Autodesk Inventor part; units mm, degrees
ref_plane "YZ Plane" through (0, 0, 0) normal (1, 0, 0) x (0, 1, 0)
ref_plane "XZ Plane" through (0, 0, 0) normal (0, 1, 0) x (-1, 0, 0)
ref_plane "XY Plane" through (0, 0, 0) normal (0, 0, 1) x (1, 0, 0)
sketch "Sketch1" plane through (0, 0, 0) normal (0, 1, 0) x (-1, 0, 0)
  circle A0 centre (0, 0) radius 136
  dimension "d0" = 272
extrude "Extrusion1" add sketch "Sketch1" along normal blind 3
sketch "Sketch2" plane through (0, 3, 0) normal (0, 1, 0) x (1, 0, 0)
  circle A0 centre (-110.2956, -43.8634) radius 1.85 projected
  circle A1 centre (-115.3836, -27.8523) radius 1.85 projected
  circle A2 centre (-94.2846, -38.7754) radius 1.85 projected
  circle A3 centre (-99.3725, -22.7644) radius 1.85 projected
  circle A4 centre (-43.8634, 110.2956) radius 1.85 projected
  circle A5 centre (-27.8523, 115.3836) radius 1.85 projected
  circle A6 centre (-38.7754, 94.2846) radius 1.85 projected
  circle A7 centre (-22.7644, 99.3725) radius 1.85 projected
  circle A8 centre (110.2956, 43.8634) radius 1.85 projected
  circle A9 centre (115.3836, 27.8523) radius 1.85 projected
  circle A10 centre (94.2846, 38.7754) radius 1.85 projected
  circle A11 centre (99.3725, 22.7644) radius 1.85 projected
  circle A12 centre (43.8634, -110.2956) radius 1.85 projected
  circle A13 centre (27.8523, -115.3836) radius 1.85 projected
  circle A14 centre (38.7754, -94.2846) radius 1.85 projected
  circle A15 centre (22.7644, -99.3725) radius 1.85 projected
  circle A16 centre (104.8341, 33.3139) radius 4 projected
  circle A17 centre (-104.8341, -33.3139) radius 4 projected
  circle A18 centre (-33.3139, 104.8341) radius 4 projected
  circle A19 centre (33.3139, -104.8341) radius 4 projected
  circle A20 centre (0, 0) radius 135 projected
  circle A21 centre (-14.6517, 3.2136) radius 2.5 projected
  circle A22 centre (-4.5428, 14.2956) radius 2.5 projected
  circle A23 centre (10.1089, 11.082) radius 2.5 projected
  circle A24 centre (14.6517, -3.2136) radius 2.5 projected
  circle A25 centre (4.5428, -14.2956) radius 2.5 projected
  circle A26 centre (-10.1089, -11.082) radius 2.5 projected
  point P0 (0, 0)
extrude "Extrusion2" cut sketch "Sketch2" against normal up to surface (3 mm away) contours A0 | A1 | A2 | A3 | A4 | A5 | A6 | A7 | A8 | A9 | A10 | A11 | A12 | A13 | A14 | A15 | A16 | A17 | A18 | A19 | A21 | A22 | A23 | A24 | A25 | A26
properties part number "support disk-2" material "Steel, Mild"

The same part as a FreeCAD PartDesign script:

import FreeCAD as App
import Part
import Sketcher
from FreeCAD import Vector
Q = App.Units.Quantity

doc = App.newDocument("Part")
params = doc.addObject("Spreadsheet::Sheet", "Params")
for row, (alias, value) in enumerate([
    ("sketch1_diameter", "272 mm"),
    ("pad1_length", "3 mm"),
    ("sketch2_diameter", "8 mm"),
    ("sketch2_diameter2", "5 mm"),
    ("sketch2_diameter3", "3.7 mm"),
    ("pocket1_length", "3 mm"),
], start=1):
    params.set(f"A{row}", alias)
    params.set(f"B{row}", "=" + value)
    params.setAlias(f"B{row}", alias)

body = doc.addObject("PartDesign::Body", "Body")

# Sketch on XZ plane
sketch1 = doc.addObject("Sketcher::SketchObject", "Sketch")
body.addObject(sketch1)
sketch1.AttachmentSupport = (doc.XZ_Plane, [""])
sketch1.MapMode = "FlatFace"
sketch1.addGeometry(Part.Circle(Vector(0, 0, 0), Vector(0, 0, 1), 136), False)
sketch1.addConstraint([
    Sketcher.Constraint("Coincident", 0, 3, -1, 1),
    Sketcher.Constraint("Diameter", 0, Q("272 mm")),
])
sketch1.setExpression("Constraints[1]", "Params.sketch1_diameter")
pad1 = doc.addObject("PartDesign::Pad", "Pad")
body.addObject(pad1)
pad1.Profile = sketch1
pad1.setExpression("Length", "Params.pad1_length")
pad1.Reversed = True

# Sketch on XZ plane
sketch2 = doc.addObject("Sketcher::SketchObject", "Sketch001")
body.addObject(sketch2)
sketch2.AttachmentSupport = (doc.XZ_Plane, [""])
sketch2.MapMode = "FlatFace"
sketch2.AttachmentOffset = App.Placement(Vector(0, 0, -3), App.Rotation())
sketch2.addGeometry([
    Part.Circle(Vector(-110.3, 43.9, 0), Vector(0, 0, 1), 1.9),  # 0
    Part.Circle(Vector(-115.4, 27.9, 0), Vector(0, 0, 1), 1.9),  # 1
    Part.Circle(Vector(-94.3, 38.8, 0), Vector(0, 0, 1), 1.9),  # 2
    Part.Circle(Vector(-99.4, 22.8, 0), Vector(0, 0, 1), 1.9),  # 3
    Part.Circle(Vector(-43.9, -110.3, 0), Vector(0, 0, 1), 1.9),  # 4
    Part.Circle(Vector(-27.9, -115.4, 0), Vector(0, 0, 1), 1.9),  # 5
    Part.Circle(Vector(-38.8, -94.3, 0), Vector(0, 0, 1), 1.9),  # 6
    Part.Circle(Vector(-22.8, -99.4, 0), Vector(0, 0, 1), 1.9),  # 7
    Part.Circle(Vector(110.3, -43.9, 0), Vector(0, 0, 1), 1.9),  # 8
    Part.Circle(Vector(115.4, -27.9, 0), Vector(0, 0, 1), 1.9),  # 9
    Part.Circle(Vector(94.3, -38.8, 0), Vector(0, 0, 1), 1.9),  # 10
    Part.Circle(Vector(99.4, -22.8, 0), Vector(0, 0, 1), 1.9),  # 11
    Part.Circle(Vector(43.9, 110.3, 0), Vector(0, 0, 1), 1.9),  # 12
    Part.Circle(Vector(27.9, 115.4, 0), Vector(0, 0, 1), 1.9),  # 13
    Part.Circle(Vector(38.8, 94.3, 0), Vector(0, 0, 1), 1.9),  # 14
    Part.Circle(Vector(22.8, 99.4, 0), Vector(0, 0, 1), 1.9),  # 15
    Part.Circle(Vector(104.8, -33.3, 0), Vector(0, 0, 1), 4),  # 16
    Part.Circle(Vector(-104.8, 33.3, 0), Vector(0, 0, 1), 4),  # 17
    Part.Circle(Vector(-33.3, -104.8, 0), Vector(0, 0, 1), 4),  # 18
    Part.Circle(Vector(33.3, 104.8, 0), Vector(0, 0, 1), 4),  # 19
    Part.Circle(Vector(-14.7, -3.2, 0), Vector(0, 0, 1), 2.5),  # 20
    Part.Circle(Vector(-4.5, -14.3, 0), Vector(0, 0, 1), 2.5),  # 21
    Part.Circle(Vector(10.1, -11.1, 0), Vector(0, 0, 1), 2.5),  # 22
    Part.Circle(Vector(14.7, 3.2, 0), Vector(0, 0, 1), 2.5),  # 23
    Part.Circle(Vector(4.5, 14.3, 0), Vector(0, 0, 1), 2.5),  # 24
    Part.Circle(Vector(-10.1, 11.1, 0), Vector(0, 0, 1), 2.5),  # 25
], False)
sketch2.addConstraint([
    Sketcher.Constraint("Equal", 0, 1),
    Sketcher.Constraint("Equal", 1, 2),
    Sketcher.Constraint("Equal", 2, 3),
    Sketcher.Constraint("Equal", 3, 4),
    Sketcher.Constraint("Equal", 4, 5),
    Sketcher.Constraint("Equal", 5, 6),
    Sketcher.Constraint("Equal", 6, 7),
    Sketcher.Constraint("Equal", 7, 8),
    Sketcher.Constraint("Equal", 8, 9),
    Sketcher.Constraint("Equal", 9, 10),
    Sketcher.Constraint("Equal", 10, 11),
    Sketcher.Constraint("Equal", 11, 12),
    Sketcher.Constraint("Equal", 12, 13),
    Sketcher.Constraint("Equal", 13, 14),
    Sketcher.Constraint("Equal", 14, 15),
    Sketcher.Constraint("Equal", 16, 17),
    Sketcher.Constraint("Equal", 17, 18),
    Sketcher.Constraint("Equal", 18, 19),
    Sketcher.Constraint("Equal", 20, 21),
    Sketcher.Constraint("Equal", 21, 22),
    Sketcher.Constraint("Equal", 22, 23),
    Sketcher.Constraint("Equal", 23, 24),
    Sketcher.Constraint("Equal", 24, 25),
    Sketcher.Constraint("Symmetric", 0, 3, 8, 3, -1, 1),
    Sketcher.Constraint("Symmetric", 1, 3, 9, 3, -1, 1),
    Sketcher.Constraint("Symmetric", 2, 3, 10, 3, -1, 1),
    Sketcher.Constraint("Symmetric", 3, 3, 11, 3, -1, 1),
    Sketcher.Constraint("Symmetric", 4, 3, 12, 3, -1, 1),
    Sketcher.Constraint("Symmetric", 5, 3, 13, 3, -1, 1),
    Sketcher.Constraint("Symmetric", 6, 3, 14, 3, -1, 1),
    Sketcher.Constraint("Symmetric", 7, 3, 15, 3, -1, 1),
    Sketcher.Constraint("Symmetric", 16, 3, 17, 3, -1, 1),
    Sketcher.Constraint("Symmetric", 18, 3, 19, 3, -1, 1),
    Sketcher.Constraint("Symmetric", 20, 3, 23, 3, -1, 1),
    Sketcher.Constraint("Symmetric", 21, 3, 24, 3, -1, 1),
    Sketcher.Constraint("Symmetric", 22, 3, 25, 3, -1, 1),
    Sketcher.Constraint("Diameter", 16, Q("8 mm")),
    Sketcher.Constraint("Diameter", 20, Q("5 mm")),
    Sketcher.Constraint("Diameter", 0, Q("3.7 mm")),
    Sketcher.Constraint("DistanceY", 4, 3, 3, 3, Q("133.06 mm")),
    Sketcher.Constraint("DistanceY", 6, 3, 2, 3, Q("133.06 mm")),
    Sketcher.Constraint("DistanceX", 7, 3, 8, 3, Q("133.06 mm")),
    Sketcher.Constraint("DistanceX", 6, 3, 10, 3, Q("133.06 mm")),
    Sketcher.Constraint("DistanceX", -1, 1, 16, 3, Q("104.834 mm")),
    Sketcher.Constraint("DistanceY", 16, 3, -1, 1, Q("33.314 mm")),
    Sketcher.Constraint("DistanceX", 18, 3, -1, 1, Q("33.314 mm")),
    Sketcher.Constraint("DistanceY", 18, 3, -1, 1, Q("104.834 mm")),
    Sketcher.Constraint("DistanceX", -1, 1, 22, 3, Q("10.109 mm")),
    Sketcher.Constraint("DistanceY", 22, 3, -1, 1, Q("11.082 mm")),
    Sketcher.Constraint("DistanceX", 1, 3, 0, 3, Q("5.088 mm")),
    Sketcher.Constraint("DistanceY", 1, 3, 0, 3, Q("16.011 mm")),
    Sketcher.Constraint("DistanceX", 0, 3, 2, 3, Q("16.011 mm")),
    Sketcher.Constraint("DistanceY", 2, 3, 0, 3, Q("5.088 mm")),
    Sketcher.Constraint("DistanceX", 3, 3, 2, 3, Q("5.088 mm")),
    Sketcher.Constraint("DistanceY", 3, 3, 2, 3, Q("16.011 mm")),
    Sketcher.Constraint("DistanceX", 3, 3, 4, 3, Q("55.509 mm")),
    Sketcher.Constraint("DistanceX", 4, 3, 5, 3, Q("16.011 mm")),
    Sketcher.Constraint("DistanceY", 5, 3, 4, 3, Q("5.088 mm")),
    Sketcher.Constraint("DistanceX", 4, 3, 6, 3, Q("5.088 mm")),
    Sketcher.Constraint("DistanceY", 7, 3, 6, 3, Q("5.088 mm")),
    Sketcher.Constraint("DistanceY", 7, 3, 8, 3, Q("55.509 mm")),
    Sketcher.Constraint("DistanceY", 20, 3, 3, 3, Q("25.978 mm")),
    Sketcher.Constraint("DistanceX", 2, 3, 20, 3, Q("79.633 mm")),
    Sketcher.Constraint("DistanceX", 20, 3, 21, 3, Q("10.109 mm")),
    Sketcher.Constraint("DistanceY", 21, 3, 20, 3, Q("11.082 mm")),
])
sketch2.setExpression("Constraints[36]", "Params.sketch2_diameter")
sketch2.setExpression("Constraints[37]", "Params.sketch2_diameter2")
sketch2.setExpression("Constraints[38]", "Params.sketch2_diameter3")
pocket1 = doc.addObject("PartDesign::Pocket", "Pocket")
body.addObject(pocket1)
pocket1.Profile = sketch2
pocket1.setExpression("Length", "Params.pocket1_length")
pocket1.Reversed = True

doc.recompute()
